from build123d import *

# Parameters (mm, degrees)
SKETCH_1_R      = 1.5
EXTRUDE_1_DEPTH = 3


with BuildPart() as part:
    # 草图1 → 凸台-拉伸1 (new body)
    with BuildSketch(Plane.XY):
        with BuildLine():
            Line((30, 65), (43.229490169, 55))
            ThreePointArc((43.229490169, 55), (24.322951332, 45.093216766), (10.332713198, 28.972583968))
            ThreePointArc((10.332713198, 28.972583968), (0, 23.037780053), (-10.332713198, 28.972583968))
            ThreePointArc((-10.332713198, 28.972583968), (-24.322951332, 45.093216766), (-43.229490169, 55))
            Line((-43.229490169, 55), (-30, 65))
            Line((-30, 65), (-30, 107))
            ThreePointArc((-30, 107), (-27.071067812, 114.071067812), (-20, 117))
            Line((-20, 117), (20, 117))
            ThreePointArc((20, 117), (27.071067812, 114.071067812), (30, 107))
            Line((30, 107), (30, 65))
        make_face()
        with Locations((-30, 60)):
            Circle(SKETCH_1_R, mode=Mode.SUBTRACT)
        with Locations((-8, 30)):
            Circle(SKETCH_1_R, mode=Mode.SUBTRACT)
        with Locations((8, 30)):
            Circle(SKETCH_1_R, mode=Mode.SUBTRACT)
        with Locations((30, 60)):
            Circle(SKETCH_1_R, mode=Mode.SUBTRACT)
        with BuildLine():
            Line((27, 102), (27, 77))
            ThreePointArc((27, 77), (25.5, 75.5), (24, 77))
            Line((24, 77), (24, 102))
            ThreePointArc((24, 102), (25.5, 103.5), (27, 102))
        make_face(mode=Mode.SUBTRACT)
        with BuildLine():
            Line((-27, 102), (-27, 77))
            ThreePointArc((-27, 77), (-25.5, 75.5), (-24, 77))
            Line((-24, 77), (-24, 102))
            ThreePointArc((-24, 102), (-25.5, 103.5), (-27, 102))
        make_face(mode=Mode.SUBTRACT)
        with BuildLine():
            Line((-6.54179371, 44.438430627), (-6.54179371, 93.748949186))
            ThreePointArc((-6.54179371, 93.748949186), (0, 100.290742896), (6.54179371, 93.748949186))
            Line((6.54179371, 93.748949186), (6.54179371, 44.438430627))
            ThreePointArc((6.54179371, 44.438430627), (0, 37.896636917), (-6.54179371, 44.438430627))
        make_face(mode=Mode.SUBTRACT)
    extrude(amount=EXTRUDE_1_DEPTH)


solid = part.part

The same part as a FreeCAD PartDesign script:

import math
import FreeCAD as App
import Part
import Sketcher
from FreeCAD import Vector
Q = App.Units.Quantity

doc = App.newDocument("Part")
body = doc.addObject("PartDesign::Body", "Body")

# Sketch on XY plane
sketch1 = body.newObject("Sketcher::SketchObject", "Sketch")
sketch1.AttachmentSupport = (doc.getObject("XY_Plane"), [""])
sketch1.MapMode = "FlatFace"
sketch1.addGeometry([
    Part.LineSegment(Vector(43.2, 55, 0), Vector(30, 65, 0)),  # 0
    Part.LineSegment(Vector(30, 65, 0), Vector(30, 107, 0)),  # 1
    Part.ArcOfCircle(Part.Circle(Vector(20, 107, 0), Vector(0, 0, 1), 10), math.radians(0), math.radians(90)),  # 2
    Part.LineSegment(Vector(20, 117, 0), Vector(-20, 117, 0)),  # 3
    Part.ArcOfCircle(Part.Circle(Vector(-20, 107, 0), Vector(0, 0, 1), 10), math.radians(90), math.radians(180)),  # 4
    Part.LineSegment(Vector(-30, 107, 0), Vector(-30, 65, 0)),  # 5
    Part.LineSegment(Vector(-30, 65, 0), Vector(-43.2, 55, 0)),  # 6
    Part.ArcOfCircle(Part.Circle(Vector(-60, 0, 0), Vector(0, 0, 1), 57.5), math.radians(30), math.radians(73)),  # 7
    Part.ArcOfCircle(Part.Circle(Vector(0, 35, 0), Vector(0, 0, 1), 12), math.radians(-150), math.radians(-30)),  # 8
    Part.ArcOfCircle(Part.Circle(Vector(60, 0, 0), Vector(0, 0, 1), 57.5), math.radians(107), math.radians(150)),  # 9
    Part.Circle(Vector(8, 30, 0), Vector(0, 0, 1), 1.5),  # 10
    Part.Circle(Vector(30, 60, 0), Vector(0, 0, 1), 1.5),  # 11
    Part.Circle(Vector(-8, 30, 0), Vector(0, 0, 1), 1.5),  # 12
    Part.Circle(Vector(-30, 60, 0), Vector(0, 0, 1), 1.5),  # 13
    Part.LineSegment(Vector(27, 102, 0), Vector(27, 77, 0)),  # 14
    Part.ArcOfCircle(Part.Circle(Vector(25.5, 77, 0), Vector(0, 0, 1), 1.5), math.radians(180), math.radians(360)),  # 15
    Part.LineSegment(Vector(24, 77, 0), Vector(24, 102, 0)),  # 16
    Part.ArcOfCircle(Part.Circle(Vector(25.5, 102, 0), Vector(0, 0, 1), 1.5), math.radians(0), math.radians(180)),  # 17
    Part.LineSegment(Vector(-6.5, 44.4, 0), Vector(-6.5, 93.7, 0)),  # 18
    Part.ArcOfCircle(Part.Circle(Vector(0, 93.7, 0), Vector(0, 0, 1), 6.5), math.radians(0), math.radians(180)),  # 19
    Part.LineSegment(Vector(6.5, 93.7, 0), Vector(6.5, 44.4, 0)),  # 20
    Part.ArcOfCircle(Part.Circle(Vector(0, 44.4, 0), Vector(0, 0, 1), 6.5), math.radians(180), math.radians(360)),  # 21
    Part.ArcOfCircle(Part.Circle(Vector(-25.5, 102, 0), Vector(0, 0, 1), 1.5), math.radians(0), math.radians(180)),  # 22
    Part.LineSegment(Vector(-24, 102, 0), Vector(-24, 77, 0)),  # 23
    Part.ArcOfCircle(Part.Circle(Vector(-25.5, 77, 0), Vector(0, 0, 1), 1.5), math.radians(180), math.radians(360)),  # 24
    Part.LineSegment(Vector(-27, 77, 0), Vector(-27, 102, 0)),  # 25
], False)
sketch1.addConstraint([
    Sketcher.Constraint("Coincident", 0, 2, 1, 1),
    Sketcher.Constraint("Tangent", 1, 2, 2, 1),
    Sketcher.Constraint("Tangent", 2, 2, 3, 1),
    Sketcher.Constraint("Tangent", 3, 2, 4, 1),
    Sketcher.Constraint("Tangent", 4, 2, 5, 1),
    Sketcher.Constraint("Coincident", 5, 2, 6, 1),
    Sketcher.Constraint("Coincident", 6, 2, 7, 2),
    Sketcher.Constraint("Tangent", 7, 1, 8, 1),
    Sketcher.Constraint("Tangent", 8, 2, 9, 2),
    Sketcher.Constraint("Coincident", 9, 1, 0, 1),
    Sketcher.Constraint("Tangent", 14, 2, 15, 2),
    Sketcher.Constraint("Tangent", 15, 1, 16, 1),
    Sketcher.Constraint("Tangent", 16, 2, 17, 2),
    Sketcher.Constraint("Tangent", 17, 1, 14, 1),
    Sketcher.Constraint("Tangent", 18, 2, 19, 2),
    Sketcher.Constraint("Tangent", 19, 1, 20, 1),
    Sketcher.Constraint("Tangent", 20, 2, 21, 2),
    Sketcher.Constraint("Tangent", 21, 1, 18, 1),
    Sketcher.Constraint("Tangent", 22, 1, 23, 1),
    Sketcher.Constraint("Tangent", 23, 2, 24, 2),
    Sketcher.Constraint("Tangent", 24, 1, 25, 1),
    Sketcher.Constraint("Tangent", 25, 2, 22, 2),
    Sketcher.Constraint("Vertical", 1),
    Sketcher.Constraint("Horizontal", 3),
    Sketcher.Constraint("Vertical", 5),
    Sketcher.Constraint("Vertical", 14),
    Sketcher.Constraint("Vertical", 16),
    Sketcher.Constraint("Vertical", 18),
    Sketcher.Constraint("Vertical", 20),
    Sketcher.Constraint("Vertical", 23),
    Sketcher.Constraint("Vertical", 25),
    Sketcher.Constraint("Equal", 2, 4),
    Sketcher.Constraint("Equal", 7, 9),
    Sketcher.Constraint("Equal", 10, 11),
    Sketcher.Constraint("Equal", 11, 12),
    Sketcher.Constraint("Equal", 12, 13),
    Sketcher.Constraint("Equal", 13, 15),
    Sketcher.Constraint("Equal", 17, 22),
    Sketcher.Constraint("Symmetric", 7, 3, 9, 3, -1, 1),
    Sketcher.Constraint("Symmetric", 10, 3, 12, 3, -2),
    Sketcher.Constraint("Symmetric", 11, 3, 13, 3, -2),
    Sketcher.Constraint("Symmetric", 17, 3, 22, 3, -2),
    Sketcher.Constraint("Symmetric", 0, 2, 5, 2, -2),
    Sketcher.Constraint("Symmetric", 6, 2, 9, 1, -2),
    Sketcher.Constraint("PointOnObject", 19, 3, -2),
    Sketcher.Constraint("Horizontal", 15, 3, 24, 3),
    Sketcher.Constraint("Vertical", 11, 3, 0, 2),
    Sketcher.Constraint("Diameter", 10, Q("3 mm")),
    Sketcher.Constraint("Radius", 2, Q("10 mm")),
    Sketcher.Constraint("Radius", 7, Q("57.5 mm")),
    Sketcher.Constraint("DistanceX", 3, 2, 3, 1, Q("40 mm")),
    Sketcher.Constraint("DistanceY", 1, 1, 1, 2, Q("42 mm")),
    Sketcher.Constraint("DistanceY", 14, 2, 14, 1, Q("25 mm")),
    Sketcher.Constraint("DistanceY", -1, 1, 2, 3, Q("107 mm")),
    Sketcher.Constraint("DistanceX", 7, 3, -1, 1, Q("60 mm")),
    Sketcher.Constraint("DistanceY", -1, 1, 8, 3, Q("35 mm")),
    Sketcher.Constraint("DistanceX", -1, 1, 10, 3, Q("8 mm")),
    Sketcher.Constraint("DistanceY", -1, 1, 10, 3, Q("30 mm")),
    Sketcher.Constraint("DistanceY", -1, 1, 11, 3, Q("60 mm")),
    Sketcher.Constraint("DistanceY", -1, 1, 15, 3, Q("77 mm")),
    Sketcher.Constraint("DistanceY", -1, 1, 6, 2, Q("55 mm")),
    Sketcher.Constraint("DistanceX", -1, 1, 14, 2, Q("27 mm")),
    Sketcher.Constraint("Radius", 19, Q("6.541794 mm")),
    Sketcher.Constraint("DistanceY", 18, 1, 18, 2, Q("49.310519 mm")),
    Sketcher.Constraint("DistanceY", -1, 1, 19, 3, Q("93.748949 mm")),
])
pad1 = body.newObject("PartDesign::Pad", "Pad")
pad1.Profile = sketch1
pad1.Length = 3

doc.recompute()
